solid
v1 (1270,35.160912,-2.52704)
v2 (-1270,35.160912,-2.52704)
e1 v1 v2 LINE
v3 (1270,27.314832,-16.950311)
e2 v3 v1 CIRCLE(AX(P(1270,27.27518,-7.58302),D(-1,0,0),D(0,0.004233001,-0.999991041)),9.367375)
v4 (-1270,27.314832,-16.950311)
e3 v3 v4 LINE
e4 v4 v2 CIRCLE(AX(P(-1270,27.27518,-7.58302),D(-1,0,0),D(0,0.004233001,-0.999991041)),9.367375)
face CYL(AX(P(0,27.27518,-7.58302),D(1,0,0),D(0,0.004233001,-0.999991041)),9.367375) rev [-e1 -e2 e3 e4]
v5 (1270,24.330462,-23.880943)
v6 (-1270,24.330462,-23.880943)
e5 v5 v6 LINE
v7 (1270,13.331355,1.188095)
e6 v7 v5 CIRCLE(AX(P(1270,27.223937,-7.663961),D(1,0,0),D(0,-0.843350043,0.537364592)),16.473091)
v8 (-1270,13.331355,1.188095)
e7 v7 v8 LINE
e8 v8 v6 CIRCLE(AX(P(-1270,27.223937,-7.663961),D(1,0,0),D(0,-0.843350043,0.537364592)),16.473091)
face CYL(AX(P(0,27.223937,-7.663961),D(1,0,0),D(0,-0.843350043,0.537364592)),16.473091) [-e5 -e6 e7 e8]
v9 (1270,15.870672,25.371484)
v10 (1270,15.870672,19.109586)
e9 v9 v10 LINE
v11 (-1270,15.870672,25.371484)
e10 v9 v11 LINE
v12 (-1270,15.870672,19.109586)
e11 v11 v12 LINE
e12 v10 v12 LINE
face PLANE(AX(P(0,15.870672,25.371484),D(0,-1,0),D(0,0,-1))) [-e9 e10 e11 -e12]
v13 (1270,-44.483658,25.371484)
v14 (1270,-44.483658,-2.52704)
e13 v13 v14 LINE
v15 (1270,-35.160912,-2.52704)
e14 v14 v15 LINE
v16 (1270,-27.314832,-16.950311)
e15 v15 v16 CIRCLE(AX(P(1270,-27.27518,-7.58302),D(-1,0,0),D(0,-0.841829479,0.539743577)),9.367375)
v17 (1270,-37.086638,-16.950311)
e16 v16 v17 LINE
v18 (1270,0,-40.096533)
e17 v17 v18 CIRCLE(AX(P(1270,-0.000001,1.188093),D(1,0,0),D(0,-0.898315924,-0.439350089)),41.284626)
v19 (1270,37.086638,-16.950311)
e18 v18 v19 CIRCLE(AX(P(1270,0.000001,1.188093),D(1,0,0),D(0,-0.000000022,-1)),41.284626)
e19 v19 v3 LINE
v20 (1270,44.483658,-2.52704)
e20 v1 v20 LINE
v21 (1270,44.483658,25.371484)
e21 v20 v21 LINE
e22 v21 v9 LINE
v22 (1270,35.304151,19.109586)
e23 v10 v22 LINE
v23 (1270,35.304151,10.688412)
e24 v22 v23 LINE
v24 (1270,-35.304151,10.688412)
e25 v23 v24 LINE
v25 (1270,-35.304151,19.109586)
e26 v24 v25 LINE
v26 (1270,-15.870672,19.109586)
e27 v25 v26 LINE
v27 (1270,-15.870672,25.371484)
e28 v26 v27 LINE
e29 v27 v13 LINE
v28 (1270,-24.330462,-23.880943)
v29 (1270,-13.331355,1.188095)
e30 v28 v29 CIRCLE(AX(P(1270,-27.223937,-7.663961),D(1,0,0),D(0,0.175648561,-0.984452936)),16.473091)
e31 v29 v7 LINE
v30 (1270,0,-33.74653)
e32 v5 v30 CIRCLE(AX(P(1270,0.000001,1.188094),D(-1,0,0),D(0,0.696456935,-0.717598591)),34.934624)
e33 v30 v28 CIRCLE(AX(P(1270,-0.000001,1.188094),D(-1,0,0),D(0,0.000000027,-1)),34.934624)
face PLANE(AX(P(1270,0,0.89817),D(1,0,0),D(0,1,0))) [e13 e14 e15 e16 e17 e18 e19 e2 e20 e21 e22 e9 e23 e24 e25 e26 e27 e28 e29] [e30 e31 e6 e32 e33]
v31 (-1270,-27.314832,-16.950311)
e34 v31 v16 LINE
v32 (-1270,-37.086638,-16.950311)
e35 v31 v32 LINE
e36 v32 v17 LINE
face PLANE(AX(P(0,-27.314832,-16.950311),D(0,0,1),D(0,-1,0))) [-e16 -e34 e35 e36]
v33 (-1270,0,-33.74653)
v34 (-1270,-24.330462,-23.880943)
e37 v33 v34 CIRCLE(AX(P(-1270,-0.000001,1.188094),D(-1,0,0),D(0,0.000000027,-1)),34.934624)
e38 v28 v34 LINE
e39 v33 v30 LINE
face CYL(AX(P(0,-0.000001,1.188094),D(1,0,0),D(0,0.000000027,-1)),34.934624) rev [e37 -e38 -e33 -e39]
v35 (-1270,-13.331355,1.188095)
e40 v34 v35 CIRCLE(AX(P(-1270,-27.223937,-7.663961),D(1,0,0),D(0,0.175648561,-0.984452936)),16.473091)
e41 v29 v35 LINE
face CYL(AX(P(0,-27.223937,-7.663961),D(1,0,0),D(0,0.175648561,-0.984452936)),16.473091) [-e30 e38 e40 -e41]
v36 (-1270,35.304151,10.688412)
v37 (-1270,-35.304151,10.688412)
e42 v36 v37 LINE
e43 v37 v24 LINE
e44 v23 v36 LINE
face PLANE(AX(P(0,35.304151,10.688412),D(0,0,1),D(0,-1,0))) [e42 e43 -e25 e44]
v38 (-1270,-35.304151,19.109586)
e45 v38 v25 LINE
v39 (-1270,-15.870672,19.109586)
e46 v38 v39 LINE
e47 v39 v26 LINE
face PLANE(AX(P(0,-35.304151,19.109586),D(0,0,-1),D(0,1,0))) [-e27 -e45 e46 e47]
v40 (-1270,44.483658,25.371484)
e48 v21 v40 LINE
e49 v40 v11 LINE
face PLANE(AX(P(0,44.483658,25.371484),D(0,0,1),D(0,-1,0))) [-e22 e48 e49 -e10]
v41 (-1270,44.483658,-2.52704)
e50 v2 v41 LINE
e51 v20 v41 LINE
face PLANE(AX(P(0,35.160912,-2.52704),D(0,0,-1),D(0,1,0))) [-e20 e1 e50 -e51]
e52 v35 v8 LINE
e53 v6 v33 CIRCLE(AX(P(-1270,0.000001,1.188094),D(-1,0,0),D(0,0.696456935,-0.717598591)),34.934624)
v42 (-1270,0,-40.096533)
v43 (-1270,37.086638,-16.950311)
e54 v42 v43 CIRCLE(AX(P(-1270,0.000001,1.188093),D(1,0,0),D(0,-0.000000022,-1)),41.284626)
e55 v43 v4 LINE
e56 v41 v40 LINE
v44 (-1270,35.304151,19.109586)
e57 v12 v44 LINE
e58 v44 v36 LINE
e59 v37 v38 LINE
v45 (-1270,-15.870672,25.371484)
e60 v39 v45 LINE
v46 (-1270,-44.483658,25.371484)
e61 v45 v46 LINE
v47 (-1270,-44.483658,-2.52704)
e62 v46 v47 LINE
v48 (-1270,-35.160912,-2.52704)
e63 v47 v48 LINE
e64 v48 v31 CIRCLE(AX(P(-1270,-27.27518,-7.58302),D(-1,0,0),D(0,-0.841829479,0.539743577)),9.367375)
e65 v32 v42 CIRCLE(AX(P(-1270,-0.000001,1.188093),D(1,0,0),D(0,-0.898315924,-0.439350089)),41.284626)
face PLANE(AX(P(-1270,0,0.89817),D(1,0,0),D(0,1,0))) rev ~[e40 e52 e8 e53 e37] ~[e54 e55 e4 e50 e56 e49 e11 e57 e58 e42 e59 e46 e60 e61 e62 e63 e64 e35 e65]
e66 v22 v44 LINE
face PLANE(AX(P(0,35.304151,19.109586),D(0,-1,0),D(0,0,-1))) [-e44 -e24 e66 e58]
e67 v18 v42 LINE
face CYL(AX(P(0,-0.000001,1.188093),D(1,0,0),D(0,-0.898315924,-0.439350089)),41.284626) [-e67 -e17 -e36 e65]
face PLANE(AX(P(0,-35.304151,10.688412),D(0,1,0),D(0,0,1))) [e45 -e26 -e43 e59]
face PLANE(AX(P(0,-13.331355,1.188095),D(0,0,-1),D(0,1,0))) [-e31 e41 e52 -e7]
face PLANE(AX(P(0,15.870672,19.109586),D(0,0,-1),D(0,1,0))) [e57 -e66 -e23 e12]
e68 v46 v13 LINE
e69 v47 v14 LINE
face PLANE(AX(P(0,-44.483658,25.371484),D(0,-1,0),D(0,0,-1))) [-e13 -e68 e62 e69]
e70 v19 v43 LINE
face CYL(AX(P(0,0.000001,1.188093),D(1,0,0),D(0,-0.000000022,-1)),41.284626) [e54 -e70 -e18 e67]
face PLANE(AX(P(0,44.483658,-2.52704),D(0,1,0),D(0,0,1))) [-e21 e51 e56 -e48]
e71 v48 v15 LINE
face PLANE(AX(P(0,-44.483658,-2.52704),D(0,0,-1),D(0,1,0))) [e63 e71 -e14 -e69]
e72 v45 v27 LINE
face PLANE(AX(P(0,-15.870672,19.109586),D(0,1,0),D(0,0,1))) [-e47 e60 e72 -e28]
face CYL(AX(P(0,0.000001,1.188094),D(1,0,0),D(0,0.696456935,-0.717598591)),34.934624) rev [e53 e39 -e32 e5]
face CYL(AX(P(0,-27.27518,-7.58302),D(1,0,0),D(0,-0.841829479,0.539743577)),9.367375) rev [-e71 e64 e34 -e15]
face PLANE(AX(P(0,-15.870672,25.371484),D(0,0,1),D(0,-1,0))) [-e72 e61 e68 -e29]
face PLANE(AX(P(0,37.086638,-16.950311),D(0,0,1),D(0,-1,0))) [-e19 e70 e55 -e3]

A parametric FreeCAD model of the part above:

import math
import FreeCAD as App
import Part
import Sketcher
Q = App.Units.Quantity

doc = App.newDocument("Part")
body = doc.addObject("PartDesign::Body", "Body")

sketch1 = body.newObject("Sketcher::SketchObject", "Sketch")
sketch1.AttachmentSupport = (doc.getObject("YZ_Plane"), [""])
sketch1.MapMode = "FlatFace"
sketch1.addGeometry([
    Part.LineSegment(App.Vector(35, 11, 0), App.Vector(-35, 11, 0)),
    Part.LineSegment(App.Vector(-35, 11, 0), App.Vector(-35, 19, 0)),
    Part.LineSegment(App.Vector(-35, 19, 0), App.Vector(-16, 19, 0)),
    Part.LineSegment(App.Vector(-16, 19, 0), App.Vector(-16, 25, 0)),
    Part.LineSegment(App.Vector(-16, 25, 0), App.Vector(-44, 25, 0)),
    Part.LineSegment(App.Vector(-44, 25, 0), App.Vector(-44, -3, 0)),
    Part.LineSegment(App.Vector(-44, -3, 0), App.Vector(-35, -3, 0)),
    Part.ArcOfCircle(Part.Circle(App.Vector(-27, -8, 0), App.Vector(0, 0, 1), 9), math.radians(-90), math.radians(147)),
    Part.LineSegment(App.Vector(-27, -17, 0), App.Vector(-37, -17, 0)),
    Part.ArcOfCircle(Part.Circle(App.Vector(0, 1, 0), App.Vector(0, 0, 1), 41), math.radians(-154), math.radians(-90)),
    Part.ArcOfCircle(Part.Circle(App.Vector(0, 1, 0), App.Vector(0, 0, 1), 41), math.radians(-90), math.radians(-26)),
    Part.LineSegment(App.Vector(37, -17, 0), App.Vector(27, -17, 0)),
    Part.ArcOfCircle(Part.Circle(App.Vector(27, -8, 0), App.Vector(0, 0, 1), 9), math.radians(33), math.radians(270)),
    Part.LineSegment(App.Vector(35, -3, 0), App.Vector(44, -3, 0)),
    Part.LineSegment(App.Vector(44, -3, 0), App.Vector(44, 25, 0)),
    Part.LineSegment(App.Vector(44, 25, 0), App.Vector(16, 25, 0)),
    Part.LineSegment(App.Vector(16, 25, 0), App.Vector(16, 19, 0)),
    Part.LineSegment(App.Vector(16, 19, 0), App.Vector(35, 19, 0)),
    Part.LineSegment(App.Vector(35, 19, 0), App.Vector(35, 11, 0)),
    Part.ArcOfCircle(Part.Circle(App.Vector(0, 1, 0), App.Vector(0, 0, 1), 35), math.radians(-90), math.radians(-46)),
    Part.ArcOfCircle(Part.Circle(App.Vector(0, 1, 0), App.Vector(0, 0, 1), 35), math.radians(-134), math.radians(-90)),
    Part.ArcOfCircle(Part.Circle(App.Vector(-27, -8, 0), App.Vector(0, 0, 1), 16), math.radians(-80), math.radians(33)),
    Part.LineSegment(App.Vector(-13, 1, 0), App.Vector(13, 1, 0)),
    Part.ArcOfCircle(Part.Circle(App.Vector(27, -8, 0), App.Vector(0, 0, 1), 16), math.radians(147), math.radians(260)),
], False)
sketch1.addConstraint([
    Sketcher.Constraint("Coincident", 0, 2, 1, 1),
    Sketcher.Constraint("Coincident", 1, 2, 2, 1),
    Sketcher.Constraint("Coincident", 2, 2, 3, 1),
    Sketcher.Constraint("Coincident", 3, 2, 4, 1),
    Sketcher.Constraint("Coincident", 4, 2, 5, 1),
    Sketcher.Constraint("Coincident", 5, 2, 6, 1),
    Sketcher.Constraint("Coincident", 6, 2, 7, 2),
    Sketcher.Constraint("Coincident", 7, 1, 8, 1),
    Sketcher.Constraint("Coincident", 8, 2, 9, 1),
    Sketcher.Constraint("Tangent", 9, 2, 10, 1),
    Sketcher.Constraint("Coincident", 10, 2, 11, 1),
    Sketcher.Constraint("Coincident", 11, 2, 12, 2),
    Sketcher.Constraint("Coincident", 12, 1, 13, 1),
    Sketcher.Constraint("Coincident", 13, 2, 14, 1),
    Sketcher.Constraint("Coincident", 14, 2, 15, 1),
    Sketcher.Constraint("Coincident", 15, 2, 16, 1),
    Sketcher.Constraint("Coincident", 16, 2, 17, 1),
    Sketcher.Constraint("Coincident", 17, 2, 18, 1),
    Sketcher.Constraint("Coincident", 18, 2, 0, 1),
    Sketcher.Constraint("Tangent", 19, 1, 20, 2),
    Sketcher.Constraint("Coincident", 20, 1, 21, 1),
    Sketcher.Constraint("Coincident", 21, 2, 22, 1),
    Sketcher.Constraint("Coincident", 22, 2, 23, 1),
    Sketcher.Constraint("Coincident", 23, 2, 19, 2),
    Sketcher.Constraint("Horizontal", 0),
    Sketcher.Constraint("Vertical", 1),
    Sketcher.Constraint("Horizontal", 2),
    Sketcher.Constraint("Vertical", 3),
    Sketcher.Constraint("Horizontal", 4),
    Sketcher.Constraint("Vertical", 5),
    Sketcher.Constraint("Horizontal", 6),
    Sketcher.Constraint("Horizontal", 8),
    Sketcher.Constraint("Horizontal", 11),
    Sketcher.Constraint("Horizontal", 13),
    Sketcher.Constraint("Vertical", 14),
    Sketcher.Constraint("Horizontal", 15),
    Sketcher.Constraint("Vertical", 16),
    Sketcher.Constraint("Horizontal", 17),
    Sketcher.Constraint("Vertical", 18),
    Sketcher.Constraint("Horizontal", 22),
    Sketcher.Constraint("Coincident", 19, 3, 9, 3),
    Sketcher.Constraint("Equal", 9, 10),
    Sketcher.Constraint("Equal", 7, 12),
    Sketcher.Constraint("Equal", 19, 20),
    Sketcher.Constraint("Equal", 21, 23),
    Sketcher.Constraint("Symmetric", 7, 3, 12, 3, -2),
    Sketcher.Constraint("Symmetric", 21, 3, 23, 3, -2),
    Sketcher.Constraint("Symmetric", 5, 2, 13, 2, -2),
    Sketcher.Constraint("Symmetric", 3, 2, 15, 2, -2),
    Sketcher.Constraint("Symmetric", 1, 2, 17, 2, -2),
    Sketcher.Constraint("PointOnObject", 9, 3, -2),
    Sketcher.Constraint("PointOnObject", 9, 2, -2),
    Sketcher.Constraint("PointOnObject", 19, 1, -2),
    Sketcher.Constraint("Horizontal", 20, 3, 21, 2),
    Sketcher.Constraint("Equal", 8, 11),
    Sketcher.Constraint("DistanceY", 9, 2, 19, 1, Q("0.2500001 in")),
    Sketcher.Constraint("Radius", 21, Q("16.473091 mm")),
    Sketcher.Constraint("DistanceX", 0, 2, 0, 1, Q("70.608302 mm")),
    Sketcher.Constraint("Radius", 7, Q("9.367375 mm")),
    Sketcher.Constraint("Radius", 9, Q("41.284626 mm")),
    Sketcher.Constraint("DistanceX", 2, 1, 2, 2, Q("19.433479 mm")),
    Sketcher.Constraint("DistanceX", 22, 1, 22, 2, Q("26.66271 mm")),
    Sketcher.Constraint("DistanceX", 8, 2, 21, 3, Q("9.862701 mm")),
    Sketcher.Constraint("DistanceX", 4, 2, 4, 1, Q("28.612986 mm")),
    Sketcher.Constraint("DistanceX", 6, 1, 6, 2, Q("9.322746 mm")),
    Sketcher.Constraint("DistanceX", 8, 2, 8, 1, Q("9.771806 mm")),
    Sketcher.Constraint("DistanceY", 1, 1, 1, 2, Q("8.421174 mm")),
    Sketcher.Constraint("DistanceY", 3, 1, 3, 2, Q("6.261898 mm")),
    Sketcher.Constraint("DistanceY", 5, 2, 5, 1, Q("27.898524 mm")),
    Sketcher.Constraint("DistanceX", 7, 3, -1, 1, Q("27.27518 mm")),
    Sketcher.Constraint("DistanceY", 7, 3, -1, 1, Q("7.58302 mm")),
    Sketcher.Constraint("DistanceY", 21, 3, -1, 1, Q("7.663961 mm")),
])
pad1 = body.newObject("PartDesign::Pad", "Pad")
pad1.Profile = sketch1
pad1.Length = Q("100 in")
pad1.Midplane = True

doc.recompute()
